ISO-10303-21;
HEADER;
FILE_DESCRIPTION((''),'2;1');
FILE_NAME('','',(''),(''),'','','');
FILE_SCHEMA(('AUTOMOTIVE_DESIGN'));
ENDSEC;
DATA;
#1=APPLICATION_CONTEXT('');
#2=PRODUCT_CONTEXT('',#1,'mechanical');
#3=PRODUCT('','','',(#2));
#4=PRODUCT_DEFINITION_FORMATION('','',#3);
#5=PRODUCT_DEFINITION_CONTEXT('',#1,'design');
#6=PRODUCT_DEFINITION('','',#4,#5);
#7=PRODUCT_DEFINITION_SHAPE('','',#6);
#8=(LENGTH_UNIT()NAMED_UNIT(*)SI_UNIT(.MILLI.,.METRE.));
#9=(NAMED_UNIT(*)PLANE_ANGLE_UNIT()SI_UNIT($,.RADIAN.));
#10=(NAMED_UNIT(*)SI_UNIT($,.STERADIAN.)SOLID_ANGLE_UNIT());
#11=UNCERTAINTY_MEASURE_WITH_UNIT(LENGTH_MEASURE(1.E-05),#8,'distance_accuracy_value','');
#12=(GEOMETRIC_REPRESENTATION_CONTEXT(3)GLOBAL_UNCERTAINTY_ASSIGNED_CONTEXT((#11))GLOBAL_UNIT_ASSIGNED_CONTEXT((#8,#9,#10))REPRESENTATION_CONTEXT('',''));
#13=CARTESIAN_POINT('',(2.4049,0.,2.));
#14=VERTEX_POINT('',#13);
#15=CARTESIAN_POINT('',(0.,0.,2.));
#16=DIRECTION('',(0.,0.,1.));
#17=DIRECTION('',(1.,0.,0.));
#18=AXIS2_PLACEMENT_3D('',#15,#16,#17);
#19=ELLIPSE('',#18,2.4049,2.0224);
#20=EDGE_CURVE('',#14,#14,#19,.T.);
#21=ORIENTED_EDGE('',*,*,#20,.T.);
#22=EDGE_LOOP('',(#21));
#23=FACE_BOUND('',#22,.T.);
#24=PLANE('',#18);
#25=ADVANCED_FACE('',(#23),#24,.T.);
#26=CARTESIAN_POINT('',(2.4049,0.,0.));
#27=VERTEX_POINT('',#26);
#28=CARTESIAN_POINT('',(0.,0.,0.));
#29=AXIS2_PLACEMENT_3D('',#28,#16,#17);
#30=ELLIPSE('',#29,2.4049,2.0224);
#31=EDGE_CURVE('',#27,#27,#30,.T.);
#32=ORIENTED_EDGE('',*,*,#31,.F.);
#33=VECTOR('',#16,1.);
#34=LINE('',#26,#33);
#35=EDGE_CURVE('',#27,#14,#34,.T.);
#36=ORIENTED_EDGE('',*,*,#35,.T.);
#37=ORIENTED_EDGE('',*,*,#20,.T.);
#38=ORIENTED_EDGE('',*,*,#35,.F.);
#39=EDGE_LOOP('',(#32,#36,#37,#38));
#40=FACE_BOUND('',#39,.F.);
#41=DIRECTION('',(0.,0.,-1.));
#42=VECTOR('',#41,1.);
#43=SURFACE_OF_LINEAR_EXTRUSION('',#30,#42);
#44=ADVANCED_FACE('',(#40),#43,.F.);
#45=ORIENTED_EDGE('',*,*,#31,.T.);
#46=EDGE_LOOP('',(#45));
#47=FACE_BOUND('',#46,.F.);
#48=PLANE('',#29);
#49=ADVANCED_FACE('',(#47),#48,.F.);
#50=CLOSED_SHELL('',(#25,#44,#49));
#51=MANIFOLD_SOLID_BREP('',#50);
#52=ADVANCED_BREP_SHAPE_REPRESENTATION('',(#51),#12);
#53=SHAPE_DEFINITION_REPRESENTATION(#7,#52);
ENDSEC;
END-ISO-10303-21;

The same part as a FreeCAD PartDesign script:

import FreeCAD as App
import Part
import Sketcher

doc = App.newDocument("Part")
body = doc.addObject("PartDesign::Body", "Body")

# Sketch on XY plane
sketch1 = body.newObject("Sketcher::SketchObject", "Sketch")
sketch1.AttachmentSupport = (doc.getObject("XY_Plane"), [""])
sketch1.MapMode = "FlatFace"
sketch1.addGeometry(Part.Ellipse(App.Vector(2.4049, 0, 0), App.Vector(0, 2.0224, 0), App.Vector(0, 0, 0)), False)
sketch1.addConstraint(Sketcher.Constraint("Block", 0))
pad1 = body.newObject("PartDesign::Pad", "Pad")
pad1.Profile = sketch1
pad1.Length = 2

doc.recompute()
